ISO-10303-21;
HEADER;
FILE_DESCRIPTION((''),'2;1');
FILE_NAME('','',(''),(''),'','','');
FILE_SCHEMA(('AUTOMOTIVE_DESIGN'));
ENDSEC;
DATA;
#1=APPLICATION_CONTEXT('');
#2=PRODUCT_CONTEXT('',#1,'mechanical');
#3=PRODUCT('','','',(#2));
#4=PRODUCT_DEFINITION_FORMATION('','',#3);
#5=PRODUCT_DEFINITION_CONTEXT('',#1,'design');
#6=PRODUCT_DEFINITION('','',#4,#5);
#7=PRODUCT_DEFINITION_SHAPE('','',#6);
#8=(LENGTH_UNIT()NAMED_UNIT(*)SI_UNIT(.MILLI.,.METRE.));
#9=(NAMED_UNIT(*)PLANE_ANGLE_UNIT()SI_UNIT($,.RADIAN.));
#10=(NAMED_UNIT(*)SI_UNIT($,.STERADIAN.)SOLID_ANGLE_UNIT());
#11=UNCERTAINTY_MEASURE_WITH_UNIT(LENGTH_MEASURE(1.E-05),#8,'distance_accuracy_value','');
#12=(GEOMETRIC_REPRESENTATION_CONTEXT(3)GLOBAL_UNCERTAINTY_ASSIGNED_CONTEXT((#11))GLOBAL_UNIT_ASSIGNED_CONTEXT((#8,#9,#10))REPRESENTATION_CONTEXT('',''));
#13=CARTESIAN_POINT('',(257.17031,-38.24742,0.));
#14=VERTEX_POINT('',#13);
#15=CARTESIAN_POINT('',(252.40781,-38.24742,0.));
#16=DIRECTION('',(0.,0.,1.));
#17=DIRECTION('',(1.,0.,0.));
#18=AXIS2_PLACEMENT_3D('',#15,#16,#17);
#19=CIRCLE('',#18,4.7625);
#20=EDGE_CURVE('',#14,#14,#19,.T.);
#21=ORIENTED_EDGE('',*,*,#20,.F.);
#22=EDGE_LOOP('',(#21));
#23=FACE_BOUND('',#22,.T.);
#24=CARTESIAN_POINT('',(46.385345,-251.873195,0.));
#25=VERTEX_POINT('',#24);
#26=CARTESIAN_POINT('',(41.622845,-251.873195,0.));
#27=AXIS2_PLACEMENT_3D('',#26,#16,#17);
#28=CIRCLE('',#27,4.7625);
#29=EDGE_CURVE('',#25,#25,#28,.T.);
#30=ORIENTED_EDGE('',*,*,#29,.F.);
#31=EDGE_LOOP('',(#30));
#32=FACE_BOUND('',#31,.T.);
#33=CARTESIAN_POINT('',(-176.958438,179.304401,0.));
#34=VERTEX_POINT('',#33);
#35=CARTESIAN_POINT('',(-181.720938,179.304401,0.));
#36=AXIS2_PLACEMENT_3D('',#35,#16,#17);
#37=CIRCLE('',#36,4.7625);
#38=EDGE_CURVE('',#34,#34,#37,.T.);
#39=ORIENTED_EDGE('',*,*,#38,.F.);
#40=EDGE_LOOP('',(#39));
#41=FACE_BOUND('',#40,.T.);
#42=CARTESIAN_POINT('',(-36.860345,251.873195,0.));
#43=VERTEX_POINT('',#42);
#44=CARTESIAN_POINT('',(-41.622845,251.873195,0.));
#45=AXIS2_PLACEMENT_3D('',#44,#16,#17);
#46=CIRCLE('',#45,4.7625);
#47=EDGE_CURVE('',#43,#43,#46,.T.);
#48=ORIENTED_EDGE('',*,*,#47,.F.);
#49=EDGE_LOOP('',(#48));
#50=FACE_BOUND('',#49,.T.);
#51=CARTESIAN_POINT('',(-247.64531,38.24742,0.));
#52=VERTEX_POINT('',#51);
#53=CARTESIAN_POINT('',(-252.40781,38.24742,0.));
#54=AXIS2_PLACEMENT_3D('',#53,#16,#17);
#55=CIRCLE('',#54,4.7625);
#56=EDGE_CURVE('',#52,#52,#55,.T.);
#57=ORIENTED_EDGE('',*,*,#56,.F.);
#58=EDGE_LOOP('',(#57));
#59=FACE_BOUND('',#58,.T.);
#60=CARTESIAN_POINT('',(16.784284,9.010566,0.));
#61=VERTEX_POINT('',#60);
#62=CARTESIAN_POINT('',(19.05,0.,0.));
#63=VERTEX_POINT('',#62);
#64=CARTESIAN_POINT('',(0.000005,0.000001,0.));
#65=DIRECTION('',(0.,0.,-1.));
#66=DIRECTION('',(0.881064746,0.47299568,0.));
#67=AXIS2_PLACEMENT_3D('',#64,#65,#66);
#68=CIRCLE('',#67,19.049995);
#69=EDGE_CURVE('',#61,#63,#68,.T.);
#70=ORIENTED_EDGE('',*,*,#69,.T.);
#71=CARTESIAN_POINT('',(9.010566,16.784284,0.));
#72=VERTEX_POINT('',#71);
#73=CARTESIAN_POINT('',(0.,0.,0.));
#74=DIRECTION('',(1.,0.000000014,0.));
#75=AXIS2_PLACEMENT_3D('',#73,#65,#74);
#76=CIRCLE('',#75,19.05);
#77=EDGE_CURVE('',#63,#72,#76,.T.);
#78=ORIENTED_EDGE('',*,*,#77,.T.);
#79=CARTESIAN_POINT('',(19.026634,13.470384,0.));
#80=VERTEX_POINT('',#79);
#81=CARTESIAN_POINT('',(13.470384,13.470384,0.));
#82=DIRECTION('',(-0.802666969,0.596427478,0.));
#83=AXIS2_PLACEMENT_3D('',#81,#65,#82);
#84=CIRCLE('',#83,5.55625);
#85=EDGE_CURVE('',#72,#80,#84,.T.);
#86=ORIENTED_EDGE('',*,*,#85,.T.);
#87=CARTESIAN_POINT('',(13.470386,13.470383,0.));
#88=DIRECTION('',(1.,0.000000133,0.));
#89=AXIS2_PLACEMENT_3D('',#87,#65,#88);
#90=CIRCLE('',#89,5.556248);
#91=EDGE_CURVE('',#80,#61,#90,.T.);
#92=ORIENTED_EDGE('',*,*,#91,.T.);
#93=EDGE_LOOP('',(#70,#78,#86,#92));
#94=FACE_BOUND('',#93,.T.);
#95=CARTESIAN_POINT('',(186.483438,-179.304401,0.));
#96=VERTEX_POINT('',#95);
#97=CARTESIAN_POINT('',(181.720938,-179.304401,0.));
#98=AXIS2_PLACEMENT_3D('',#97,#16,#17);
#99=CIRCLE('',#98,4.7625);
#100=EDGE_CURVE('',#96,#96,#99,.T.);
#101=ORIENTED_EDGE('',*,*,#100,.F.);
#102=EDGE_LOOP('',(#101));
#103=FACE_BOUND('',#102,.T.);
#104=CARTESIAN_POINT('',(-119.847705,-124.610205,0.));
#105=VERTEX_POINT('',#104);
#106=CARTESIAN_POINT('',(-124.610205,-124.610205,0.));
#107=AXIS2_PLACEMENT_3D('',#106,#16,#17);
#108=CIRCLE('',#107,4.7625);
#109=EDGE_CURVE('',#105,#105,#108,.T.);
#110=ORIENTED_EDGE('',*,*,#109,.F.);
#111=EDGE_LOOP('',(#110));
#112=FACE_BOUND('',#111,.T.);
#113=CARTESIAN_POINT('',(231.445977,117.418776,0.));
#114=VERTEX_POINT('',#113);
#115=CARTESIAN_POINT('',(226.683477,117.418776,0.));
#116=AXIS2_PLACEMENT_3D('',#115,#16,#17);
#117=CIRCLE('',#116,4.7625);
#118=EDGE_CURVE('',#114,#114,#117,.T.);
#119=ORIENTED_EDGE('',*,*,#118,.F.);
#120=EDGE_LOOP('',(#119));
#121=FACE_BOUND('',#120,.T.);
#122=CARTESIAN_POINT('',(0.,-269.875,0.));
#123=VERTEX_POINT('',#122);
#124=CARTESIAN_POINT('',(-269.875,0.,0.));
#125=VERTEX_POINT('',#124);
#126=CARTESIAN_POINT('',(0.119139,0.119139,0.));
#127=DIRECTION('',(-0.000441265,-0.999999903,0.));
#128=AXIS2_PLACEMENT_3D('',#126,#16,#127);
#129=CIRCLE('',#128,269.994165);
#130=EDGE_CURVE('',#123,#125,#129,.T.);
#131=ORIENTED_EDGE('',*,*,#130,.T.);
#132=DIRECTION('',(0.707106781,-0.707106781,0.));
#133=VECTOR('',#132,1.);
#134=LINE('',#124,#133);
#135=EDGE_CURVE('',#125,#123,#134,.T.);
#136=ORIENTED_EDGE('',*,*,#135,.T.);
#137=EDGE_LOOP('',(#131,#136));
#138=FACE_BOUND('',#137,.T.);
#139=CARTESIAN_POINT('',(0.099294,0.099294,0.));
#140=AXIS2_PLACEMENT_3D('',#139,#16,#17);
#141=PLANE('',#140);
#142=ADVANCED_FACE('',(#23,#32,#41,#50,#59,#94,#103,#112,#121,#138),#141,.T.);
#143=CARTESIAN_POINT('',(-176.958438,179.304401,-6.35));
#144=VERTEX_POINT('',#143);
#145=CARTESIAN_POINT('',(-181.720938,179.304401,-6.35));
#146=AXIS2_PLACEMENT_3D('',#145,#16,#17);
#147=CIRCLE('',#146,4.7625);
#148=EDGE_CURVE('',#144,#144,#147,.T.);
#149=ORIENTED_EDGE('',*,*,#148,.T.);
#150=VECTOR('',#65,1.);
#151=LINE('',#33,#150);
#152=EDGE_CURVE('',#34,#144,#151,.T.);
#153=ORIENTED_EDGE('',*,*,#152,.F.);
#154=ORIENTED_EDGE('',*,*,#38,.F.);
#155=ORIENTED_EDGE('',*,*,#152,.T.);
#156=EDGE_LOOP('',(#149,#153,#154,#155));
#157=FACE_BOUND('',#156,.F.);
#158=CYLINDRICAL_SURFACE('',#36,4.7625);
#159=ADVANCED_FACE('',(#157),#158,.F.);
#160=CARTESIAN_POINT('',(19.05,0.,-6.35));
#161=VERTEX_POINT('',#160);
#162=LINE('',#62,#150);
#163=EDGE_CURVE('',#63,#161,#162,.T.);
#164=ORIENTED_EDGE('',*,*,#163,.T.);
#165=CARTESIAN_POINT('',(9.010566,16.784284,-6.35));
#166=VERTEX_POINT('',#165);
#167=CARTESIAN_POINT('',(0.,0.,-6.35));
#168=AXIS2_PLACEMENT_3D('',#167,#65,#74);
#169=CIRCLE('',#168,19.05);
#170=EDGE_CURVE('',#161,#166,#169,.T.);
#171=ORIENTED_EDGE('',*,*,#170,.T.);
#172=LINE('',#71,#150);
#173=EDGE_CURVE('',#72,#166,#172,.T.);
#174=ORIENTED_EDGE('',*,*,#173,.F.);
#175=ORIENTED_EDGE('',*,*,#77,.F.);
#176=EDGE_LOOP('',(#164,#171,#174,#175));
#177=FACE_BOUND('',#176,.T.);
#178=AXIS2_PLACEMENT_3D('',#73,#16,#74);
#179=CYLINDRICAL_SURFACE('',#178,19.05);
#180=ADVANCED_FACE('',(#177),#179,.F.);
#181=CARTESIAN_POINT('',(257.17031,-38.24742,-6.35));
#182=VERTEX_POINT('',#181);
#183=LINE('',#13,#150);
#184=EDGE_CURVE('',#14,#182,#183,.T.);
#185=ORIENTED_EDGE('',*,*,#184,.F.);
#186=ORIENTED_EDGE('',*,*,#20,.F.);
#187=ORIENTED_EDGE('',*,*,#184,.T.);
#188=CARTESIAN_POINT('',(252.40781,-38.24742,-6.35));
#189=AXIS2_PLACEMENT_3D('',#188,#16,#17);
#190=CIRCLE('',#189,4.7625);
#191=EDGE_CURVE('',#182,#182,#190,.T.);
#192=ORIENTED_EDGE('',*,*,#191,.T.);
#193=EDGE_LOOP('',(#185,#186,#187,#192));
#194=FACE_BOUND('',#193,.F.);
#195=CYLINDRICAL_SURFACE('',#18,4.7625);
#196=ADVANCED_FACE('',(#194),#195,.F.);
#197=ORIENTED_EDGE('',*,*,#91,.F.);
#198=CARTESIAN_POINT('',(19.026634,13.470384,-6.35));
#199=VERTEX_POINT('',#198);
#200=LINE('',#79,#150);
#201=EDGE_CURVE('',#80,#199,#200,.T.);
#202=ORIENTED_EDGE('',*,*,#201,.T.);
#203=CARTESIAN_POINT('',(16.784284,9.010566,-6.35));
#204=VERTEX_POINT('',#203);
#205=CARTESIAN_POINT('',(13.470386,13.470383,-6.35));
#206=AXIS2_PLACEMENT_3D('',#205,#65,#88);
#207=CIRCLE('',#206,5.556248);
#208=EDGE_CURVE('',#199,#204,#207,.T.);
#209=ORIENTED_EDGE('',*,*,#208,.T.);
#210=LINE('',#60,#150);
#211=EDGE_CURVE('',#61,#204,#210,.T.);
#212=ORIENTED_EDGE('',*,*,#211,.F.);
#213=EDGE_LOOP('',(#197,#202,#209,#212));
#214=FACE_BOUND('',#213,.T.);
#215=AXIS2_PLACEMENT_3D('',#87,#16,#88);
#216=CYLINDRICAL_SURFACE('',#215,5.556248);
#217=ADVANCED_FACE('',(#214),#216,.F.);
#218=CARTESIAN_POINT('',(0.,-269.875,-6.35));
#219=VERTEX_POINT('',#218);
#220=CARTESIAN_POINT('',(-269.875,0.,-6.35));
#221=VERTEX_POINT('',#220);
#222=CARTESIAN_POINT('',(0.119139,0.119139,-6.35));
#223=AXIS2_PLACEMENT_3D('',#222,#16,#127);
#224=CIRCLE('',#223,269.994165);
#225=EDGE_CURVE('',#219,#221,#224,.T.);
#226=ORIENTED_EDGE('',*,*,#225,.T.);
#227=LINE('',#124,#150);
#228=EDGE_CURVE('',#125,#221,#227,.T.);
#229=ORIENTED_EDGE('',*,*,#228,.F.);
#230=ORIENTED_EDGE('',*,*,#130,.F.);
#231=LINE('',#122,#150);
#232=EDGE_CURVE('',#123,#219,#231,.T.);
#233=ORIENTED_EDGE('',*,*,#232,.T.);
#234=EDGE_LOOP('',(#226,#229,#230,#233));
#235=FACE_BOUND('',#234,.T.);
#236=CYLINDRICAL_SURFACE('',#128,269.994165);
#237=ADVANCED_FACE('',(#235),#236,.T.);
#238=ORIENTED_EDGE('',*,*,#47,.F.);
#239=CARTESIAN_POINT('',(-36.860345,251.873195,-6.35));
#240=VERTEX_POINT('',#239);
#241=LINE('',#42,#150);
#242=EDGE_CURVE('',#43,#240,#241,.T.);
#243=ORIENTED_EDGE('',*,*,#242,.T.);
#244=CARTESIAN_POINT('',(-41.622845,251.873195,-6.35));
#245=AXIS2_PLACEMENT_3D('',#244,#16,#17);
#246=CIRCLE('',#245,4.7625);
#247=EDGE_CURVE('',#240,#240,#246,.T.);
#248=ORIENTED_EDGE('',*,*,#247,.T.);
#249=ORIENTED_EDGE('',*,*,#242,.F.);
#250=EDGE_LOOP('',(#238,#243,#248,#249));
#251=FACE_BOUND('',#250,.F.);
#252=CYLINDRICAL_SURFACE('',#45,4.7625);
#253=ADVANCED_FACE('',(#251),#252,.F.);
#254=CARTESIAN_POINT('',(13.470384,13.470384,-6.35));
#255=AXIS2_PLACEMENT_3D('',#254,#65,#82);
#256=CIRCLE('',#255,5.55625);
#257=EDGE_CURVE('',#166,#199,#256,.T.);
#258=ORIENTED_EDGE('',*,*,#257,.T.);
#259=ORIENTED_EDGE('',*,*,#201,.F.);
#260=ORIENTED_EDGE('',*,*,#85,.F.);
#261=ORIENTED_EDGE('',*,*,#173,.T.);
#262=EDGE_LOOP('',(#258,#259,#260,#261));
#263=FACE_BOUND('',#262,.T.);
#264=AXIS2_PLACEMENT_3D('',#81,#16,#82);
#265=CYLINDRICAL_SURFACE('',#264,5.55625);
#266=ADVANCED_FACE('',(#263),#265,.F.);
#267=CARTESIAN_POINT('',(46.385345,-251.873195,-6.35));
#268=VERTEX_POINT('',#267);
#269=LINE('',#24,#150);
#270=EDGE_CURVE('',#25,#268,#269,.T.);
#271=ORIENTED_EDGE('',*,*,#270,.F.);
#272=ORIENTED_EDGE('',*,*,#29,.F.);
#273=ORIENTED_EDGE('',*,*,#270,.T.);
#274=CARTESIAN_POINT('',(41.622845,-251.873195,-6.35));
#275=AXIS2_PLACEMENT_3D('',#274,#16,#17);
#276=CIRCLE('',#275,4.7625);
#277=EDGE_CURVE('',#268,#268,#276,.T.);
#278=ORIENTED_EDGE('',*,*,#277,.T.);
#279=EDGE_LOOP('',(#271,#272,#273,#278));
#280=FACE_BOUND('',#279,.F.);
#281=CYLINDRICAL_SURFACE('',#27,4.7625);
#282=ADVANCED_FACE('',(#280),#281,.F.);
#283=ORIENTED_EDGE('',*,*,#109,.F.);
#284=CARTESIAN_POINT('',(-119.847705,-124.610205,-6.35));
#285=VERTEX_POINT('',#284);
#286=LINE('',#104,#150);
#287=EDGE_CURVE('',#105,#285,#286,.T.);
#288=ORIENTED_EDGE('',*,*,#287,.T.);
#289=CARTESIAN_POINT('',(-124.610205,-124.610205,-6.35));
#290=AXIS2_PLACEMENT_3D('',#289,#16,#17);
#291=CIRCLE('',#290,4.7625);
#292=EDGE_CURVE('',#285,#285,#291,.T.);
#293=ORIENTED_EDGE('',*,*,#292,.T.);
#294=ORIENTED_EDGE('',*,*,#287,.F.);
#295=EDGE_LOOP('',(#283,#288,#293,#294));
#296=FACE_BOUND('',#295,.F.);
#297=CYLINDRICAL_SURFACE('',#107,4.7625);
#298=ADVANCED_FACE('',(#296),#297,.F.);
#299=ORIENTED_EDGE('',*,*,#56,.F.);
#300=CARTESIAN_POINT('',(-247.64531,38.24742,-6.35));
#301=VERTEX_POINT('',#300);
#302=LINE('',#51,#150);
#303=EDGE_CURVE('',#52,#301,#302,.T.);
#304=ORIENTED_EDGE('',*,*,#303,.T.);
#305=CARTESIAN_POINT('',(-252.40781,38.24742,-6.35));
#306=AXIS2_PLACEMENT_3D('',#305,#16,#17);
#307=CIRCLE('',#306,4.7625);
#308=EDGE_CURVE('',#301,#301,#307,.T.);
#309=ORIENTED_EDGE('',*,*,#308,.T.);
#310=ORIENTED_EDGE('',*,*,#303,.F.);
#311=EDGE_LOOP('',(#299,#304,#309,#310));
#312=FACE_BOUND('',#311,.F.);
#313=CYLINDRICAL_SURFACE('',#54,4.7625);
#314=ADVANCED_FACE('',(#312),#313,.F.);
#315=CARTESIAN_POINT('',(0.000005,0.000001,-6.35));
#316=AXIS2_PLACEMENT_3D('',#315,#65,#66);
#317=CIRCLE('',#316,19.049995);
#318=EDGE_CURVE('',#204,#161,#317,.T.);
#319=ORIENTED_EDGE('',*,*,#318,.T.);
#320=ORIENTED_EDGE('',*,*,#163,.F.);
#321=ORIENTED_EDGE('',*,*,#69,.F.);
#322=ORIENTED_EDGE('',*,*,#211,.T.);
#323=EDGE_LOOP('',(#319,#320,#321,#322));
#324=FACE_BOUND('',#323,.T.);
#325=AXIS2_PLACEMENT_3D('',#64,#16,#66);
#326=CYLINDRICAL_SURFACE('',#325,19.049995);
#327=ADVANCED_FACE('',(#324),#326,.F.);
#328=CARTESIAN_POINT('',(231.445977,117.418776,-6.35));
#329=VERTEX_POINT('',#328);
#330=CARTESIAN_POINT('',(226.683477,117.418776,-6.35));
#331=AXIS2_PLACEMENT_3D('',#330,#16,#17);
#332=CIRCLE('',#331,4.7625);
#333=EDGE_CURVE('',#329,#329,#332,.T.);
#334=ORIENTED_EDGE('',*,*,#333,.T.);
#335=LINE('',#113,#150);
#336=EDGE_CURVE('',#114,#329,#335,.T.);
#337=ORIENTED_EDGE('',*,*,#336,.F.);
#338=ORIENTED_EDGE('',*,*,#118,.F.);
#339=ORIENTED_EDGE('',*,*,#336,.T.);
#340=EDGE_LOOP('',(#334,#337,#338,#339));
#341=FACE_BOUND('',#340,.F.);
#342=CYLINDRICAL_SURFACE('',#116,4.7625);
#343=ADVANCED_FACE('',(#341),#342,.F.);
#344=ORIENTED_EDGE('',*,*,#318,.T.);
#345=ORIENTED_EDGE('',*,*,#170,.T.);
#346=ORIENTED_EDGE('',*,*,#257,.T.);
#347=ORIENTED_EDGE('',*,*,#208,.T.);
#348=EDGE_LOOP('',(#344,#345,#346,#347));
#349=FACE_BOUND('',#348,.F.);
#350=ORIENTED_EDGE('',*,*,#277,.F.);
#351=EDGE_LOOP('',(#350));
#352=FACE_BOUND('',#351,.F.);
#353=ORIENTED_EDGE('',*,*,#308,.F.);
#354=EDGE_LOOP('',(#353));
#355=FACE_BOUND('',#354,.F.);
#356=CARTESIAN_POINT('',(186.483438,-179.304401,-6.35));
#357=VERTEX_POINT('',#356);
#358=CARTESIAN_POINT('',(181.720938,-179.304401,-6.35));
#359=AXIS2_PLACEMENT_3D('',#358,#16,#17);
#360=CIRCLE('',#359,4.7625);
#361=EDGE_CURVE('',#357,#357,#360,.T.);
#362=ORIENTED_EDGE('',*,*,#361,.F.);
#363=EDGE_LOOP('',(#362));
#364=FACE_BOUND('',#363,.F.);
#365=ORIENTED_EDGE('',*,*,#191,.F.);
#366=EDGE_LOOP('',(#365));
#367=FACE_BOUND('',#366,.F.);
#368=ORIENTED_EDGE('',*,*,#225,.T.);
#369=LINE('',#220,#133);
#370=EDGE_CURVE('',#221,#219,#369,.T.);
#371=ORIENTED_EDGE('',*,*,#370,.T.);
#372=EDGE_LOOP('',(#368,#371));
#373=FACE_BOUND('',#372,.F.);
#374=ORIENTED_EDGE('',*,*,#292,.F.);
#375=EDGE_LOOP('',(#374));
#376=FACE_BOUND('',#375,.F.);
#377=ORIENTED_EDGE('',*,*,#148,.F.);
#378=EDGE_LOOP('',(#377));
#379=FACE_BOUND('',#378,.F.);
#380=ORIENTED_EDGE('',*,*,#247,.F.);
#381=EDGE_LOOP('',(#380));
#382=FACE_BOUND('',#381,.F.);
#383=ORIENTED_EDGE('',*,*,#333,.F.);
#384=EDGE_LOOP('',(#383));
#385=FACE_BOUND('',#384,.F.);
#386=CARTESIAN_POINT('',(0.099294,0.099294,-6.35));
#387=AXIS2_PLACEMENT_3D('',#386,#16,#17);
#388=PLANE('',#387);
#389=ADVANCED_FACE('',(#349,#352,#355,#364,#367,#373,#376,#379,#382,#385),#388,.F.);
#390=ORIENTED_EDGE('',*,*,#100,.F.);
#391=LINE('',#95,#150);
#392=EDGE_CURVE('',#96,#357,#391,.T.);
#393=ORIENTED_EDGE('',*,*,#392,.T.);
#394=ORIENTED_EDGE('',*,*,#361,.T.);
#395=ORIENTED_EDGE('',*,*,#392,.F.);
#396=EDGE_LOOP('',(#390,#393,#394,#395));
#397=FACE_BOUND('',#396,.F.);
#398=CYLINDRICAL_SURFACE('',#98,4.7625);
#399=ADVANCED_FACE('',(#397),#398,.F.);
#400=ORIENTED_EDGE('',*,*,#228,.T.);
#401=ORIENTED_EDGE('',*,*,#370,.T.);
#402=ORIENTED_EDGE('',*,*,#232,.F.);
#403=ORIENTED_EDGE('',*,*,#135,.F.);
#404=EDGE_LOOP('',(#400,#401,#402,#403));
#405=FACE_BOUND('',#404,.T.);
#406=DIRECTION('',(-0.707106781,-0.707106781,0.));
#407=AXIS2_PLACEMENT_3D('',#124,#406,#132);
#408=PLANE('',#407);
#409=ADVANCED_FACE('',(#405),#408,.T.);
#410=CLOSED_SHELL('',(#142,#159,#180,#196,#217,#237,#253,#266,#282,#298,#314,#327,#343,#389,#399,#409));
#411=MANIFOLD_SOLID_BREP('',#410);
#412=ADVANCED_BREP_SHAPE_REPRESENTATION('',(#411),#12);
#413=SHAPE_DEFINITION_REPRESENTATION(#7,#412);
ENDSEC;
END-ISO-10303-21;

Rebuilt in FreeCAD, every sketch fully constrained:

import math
import FreeCAD as App
import Part
import Sketcher
from FreeCAD import Vector
Q = App.Units.Quantity

doc = App.newDocument("Part")
body = doc.addObject("PartDesign::Body", "Body")

# Sketch on XY plane
sketch1 = body.newObject("Sketcher::SketchObject", "Sketch")
sketch1.AttachmentSupport = (doc.getObject("XY_Plane"), [""])
sketch1.MapMode = "FlatFace"
sketch1.addGeometry([
    Part.LineSegment(Vector(-269.9, 0, 0), Vector(0, -269.9, 0)),  # 0
    Part.ArcOfCircle(Part.Circle(Vector(0.1, 0.1, 0), Vector(0, 0, 1), 270), math.radians(-90), math.radians(180)),  # 1
    Part.Circle(Vector(-124.6, -124.6, 0), Vector(0, 0, 1), 4.8),  # 2
    Part.Circle(Vector(41.6, -251.9, 0), Vector(0, 0, 1), 4.8),  # 3
    Part.Circle(Vector(181.7, -179.3, 0), Vector(0, 0, 1), 4.8),  # 4
    Part.ArcOfCircle(Part.Circle(Vector(13.5, 13.5, 0), Vector(0, 0, 1), 5.6), math.radians(-53), math.radians(0)),  # 5
    Part.ArcOfCircle(Part.Circle(Vector(0, 0, 0), Vector(0, 0, 1), 19), math.radians(0), math.radians(28)),  # 6
    Part.ArcOfCircle(Part.Circle(Vector(0, 0, 0), Vector(0, 0, 1), 19), math.radians(62), math.radians(360)),  # 7
    Part.ArcOfCircle(Part.Circle(Vector(13.5, 13.5, 0), Vector(0, 0, 1), 5.6), math.radians(0), math.radians(143)),  # 8
    Part.Circle(Vector(252.4, -38.2, 0), Vector(0, 0, 1), 4.8),  # 9
    Part.Circle(Vector(-252.4, 38.2, 0), Vector(0, 0, 1), 4.8),  # 10
    Part.Circle(Vector(-181.7, 179.3, 0), Vector(0, 0, 1), 4.8),  # 11
    Part.Circle(Vector(-41.6, 251.9, 0), Vector(0, 0, 1), 4.8),  # 12
    Part.Circle(Vector(226.7, 117.4, 0), Vector(0, 0, 1), 4.8),  # 13
], False)
sketch1.addConstraint([
    Sketcher.Constraint("Coincident", 0, 1, 1, 2),
    Sketcher.Constraint("Coincident", 1, 1, 0, 2),
    Sketcher.Constraint("Coincident", 5, 1, 6, 2),
    Sketcher.Constraint("Tangent", 6, 1, 7, 2),
    Sketcher.Constraint("Coincident", 7, 1, 8, 2),
    Sketcher.Constraint("Tangent", 8, 1, 5, 2),
    Sketcher.Constraint("Coincident", 6, 3, -1, 1),
    Sketcher.Constraint("Equal", 2, 3),
    Sketcher.Constraint("Equal", 3, 4),
    Sketcher.Constraint("Equal", 4, 9),
    Sketcher.Constraint("Equal", 9, 10),
    Sketcher.Constraint("Equal", 10, 11),
    Sketcher.Constraint("Equal", 11, 12),
    Sketcher.Constraint("Equal", 12, 13),
    Sketcher.Constraint("Symmetric", 9, 3, 10, 3, -1, 1),
    Sketcher.Constraint("Symmetric", 4, 3, 11, 3, -1, 1),
    Sketcher.Constraint("Symmetric", 3, 3, 12, 3, -1, 1),
    Sketcher.Constraint("PointOnObject", 0, 1, -1),
    Sketcher.Constraint("PointOnObject", 1, 1, -2),
    Sketcher.Constraint("PointOnObject", 6, 1, -1),
    Sketcher.Constraint("Horizontal", 5, 3, 8, 1),
    Sketcher.Constraint("Vertical", 7, 3, 1, 1),
    Sketcher.Constraint("Radius", 6, Q("0.7499998 in")),
    Sketcher.Constraint("Diameter", 2, Q("0.375 in")),
    Sketcher.Constraint("Angle", 0, Q("-45 deg")),
    Sketcher.Constraint("Radius", 5, Q("0.2187499 in")),
    Sketcher.Constraint("Radius", 8, Q("0.21875 in")),
    Sketcher.Constraint("DistanceX", 0, 1, -1, 1, Q("10.625 in")),
    Sketcher.Constraint("Radius", 1, 269.994165),
    Sketcher.Constraint("DistanceY", 4, 3, -1, 1, 179.304401),
    Sketcher.Constraint("DistanceX", 1, 3, 4, 3, 181.601799),
    Sketcher.Constraint("DistanceX", 8, 3, 5, 1, 3.3139),
    Sketcher.Constraint("DistanceY", 8, 3, 7, 1, 3.3139),
    Sketcher.Constraint("DistanceX", -1, 1, 9, 3, 252.40781),
    Sketcher.Constraint("DistanceY", 9, 3, -1, 1, 38.24742),
    Sketcher.Constraint("DistanceX", 2, 3, 3, 3, 166.23305),
    Sketcher.Constraint("DistanceY", 3, 3, 2, 3, 127.26299),
    Sketcher.Constraint("DistanceX", 2, 3, 5, 3, 138.080591),
    Sketcher.Constraint("DistanceY", 2, 3, 5, 3, 138.080588),
    Sketcher.Constraint("DistanceX", 5, 3, 13, 3, 213.213091),
    Sketcher.Constraint("DistanceY", -1, 1, 13, 3, 117.418776),
])
pad1 = body.newObject("PartDesign::Pad", "Pad")
pad1.Profile = sketch1
pad1.Length = Q("0.25 in")
pad1.Reversed = True

doc.recompute()
